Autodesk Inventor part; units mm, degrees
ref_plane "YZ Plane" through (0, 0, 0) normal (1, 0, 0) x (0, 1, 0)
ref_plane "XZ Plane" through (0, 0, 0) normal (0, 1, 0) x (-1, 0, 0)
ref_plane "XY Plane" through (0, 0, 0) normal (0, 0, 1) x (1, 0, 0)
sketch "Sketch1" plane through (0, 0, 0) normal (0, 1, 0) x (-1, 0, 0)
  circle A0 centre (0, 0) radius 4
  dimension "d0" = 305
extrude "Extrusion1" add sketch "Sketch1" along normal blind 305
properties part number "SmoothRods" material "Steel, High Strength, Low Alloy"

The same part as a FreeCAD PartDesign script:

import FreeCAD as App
import Part
import Sketcher
Q = App.Units.Quantity

doc = App.newDocument("Part")
body = doc.addObject("PartDesign::Body", "Body")

sketch1 = body.newObject("Sketcher::SketchObject", "Sketch")
sketch1.AttachmentSupport = (doc.getObject("XZ_Plane"), [""])
sketch1.MapMode = "FlatFace"
sketch1.addGeometry(Part.Circle(App.Vector(0, 0, 0), App.Vector(0, 0, 1), 4), False)
sketch1.addConstraint(Sketcher.Constraint("Coincident", 0, 3, -1, 1))
sketch1.addConstraint(Sketcher.Constraint("Diameter", 0, Q("8 mm")))
pad1 = body.newObject("PartDesign::Pad", "Pad")
pad1.Profile = sketch1
pad1.Length = 305
pad1.Reversed = True

doc.recompute()
